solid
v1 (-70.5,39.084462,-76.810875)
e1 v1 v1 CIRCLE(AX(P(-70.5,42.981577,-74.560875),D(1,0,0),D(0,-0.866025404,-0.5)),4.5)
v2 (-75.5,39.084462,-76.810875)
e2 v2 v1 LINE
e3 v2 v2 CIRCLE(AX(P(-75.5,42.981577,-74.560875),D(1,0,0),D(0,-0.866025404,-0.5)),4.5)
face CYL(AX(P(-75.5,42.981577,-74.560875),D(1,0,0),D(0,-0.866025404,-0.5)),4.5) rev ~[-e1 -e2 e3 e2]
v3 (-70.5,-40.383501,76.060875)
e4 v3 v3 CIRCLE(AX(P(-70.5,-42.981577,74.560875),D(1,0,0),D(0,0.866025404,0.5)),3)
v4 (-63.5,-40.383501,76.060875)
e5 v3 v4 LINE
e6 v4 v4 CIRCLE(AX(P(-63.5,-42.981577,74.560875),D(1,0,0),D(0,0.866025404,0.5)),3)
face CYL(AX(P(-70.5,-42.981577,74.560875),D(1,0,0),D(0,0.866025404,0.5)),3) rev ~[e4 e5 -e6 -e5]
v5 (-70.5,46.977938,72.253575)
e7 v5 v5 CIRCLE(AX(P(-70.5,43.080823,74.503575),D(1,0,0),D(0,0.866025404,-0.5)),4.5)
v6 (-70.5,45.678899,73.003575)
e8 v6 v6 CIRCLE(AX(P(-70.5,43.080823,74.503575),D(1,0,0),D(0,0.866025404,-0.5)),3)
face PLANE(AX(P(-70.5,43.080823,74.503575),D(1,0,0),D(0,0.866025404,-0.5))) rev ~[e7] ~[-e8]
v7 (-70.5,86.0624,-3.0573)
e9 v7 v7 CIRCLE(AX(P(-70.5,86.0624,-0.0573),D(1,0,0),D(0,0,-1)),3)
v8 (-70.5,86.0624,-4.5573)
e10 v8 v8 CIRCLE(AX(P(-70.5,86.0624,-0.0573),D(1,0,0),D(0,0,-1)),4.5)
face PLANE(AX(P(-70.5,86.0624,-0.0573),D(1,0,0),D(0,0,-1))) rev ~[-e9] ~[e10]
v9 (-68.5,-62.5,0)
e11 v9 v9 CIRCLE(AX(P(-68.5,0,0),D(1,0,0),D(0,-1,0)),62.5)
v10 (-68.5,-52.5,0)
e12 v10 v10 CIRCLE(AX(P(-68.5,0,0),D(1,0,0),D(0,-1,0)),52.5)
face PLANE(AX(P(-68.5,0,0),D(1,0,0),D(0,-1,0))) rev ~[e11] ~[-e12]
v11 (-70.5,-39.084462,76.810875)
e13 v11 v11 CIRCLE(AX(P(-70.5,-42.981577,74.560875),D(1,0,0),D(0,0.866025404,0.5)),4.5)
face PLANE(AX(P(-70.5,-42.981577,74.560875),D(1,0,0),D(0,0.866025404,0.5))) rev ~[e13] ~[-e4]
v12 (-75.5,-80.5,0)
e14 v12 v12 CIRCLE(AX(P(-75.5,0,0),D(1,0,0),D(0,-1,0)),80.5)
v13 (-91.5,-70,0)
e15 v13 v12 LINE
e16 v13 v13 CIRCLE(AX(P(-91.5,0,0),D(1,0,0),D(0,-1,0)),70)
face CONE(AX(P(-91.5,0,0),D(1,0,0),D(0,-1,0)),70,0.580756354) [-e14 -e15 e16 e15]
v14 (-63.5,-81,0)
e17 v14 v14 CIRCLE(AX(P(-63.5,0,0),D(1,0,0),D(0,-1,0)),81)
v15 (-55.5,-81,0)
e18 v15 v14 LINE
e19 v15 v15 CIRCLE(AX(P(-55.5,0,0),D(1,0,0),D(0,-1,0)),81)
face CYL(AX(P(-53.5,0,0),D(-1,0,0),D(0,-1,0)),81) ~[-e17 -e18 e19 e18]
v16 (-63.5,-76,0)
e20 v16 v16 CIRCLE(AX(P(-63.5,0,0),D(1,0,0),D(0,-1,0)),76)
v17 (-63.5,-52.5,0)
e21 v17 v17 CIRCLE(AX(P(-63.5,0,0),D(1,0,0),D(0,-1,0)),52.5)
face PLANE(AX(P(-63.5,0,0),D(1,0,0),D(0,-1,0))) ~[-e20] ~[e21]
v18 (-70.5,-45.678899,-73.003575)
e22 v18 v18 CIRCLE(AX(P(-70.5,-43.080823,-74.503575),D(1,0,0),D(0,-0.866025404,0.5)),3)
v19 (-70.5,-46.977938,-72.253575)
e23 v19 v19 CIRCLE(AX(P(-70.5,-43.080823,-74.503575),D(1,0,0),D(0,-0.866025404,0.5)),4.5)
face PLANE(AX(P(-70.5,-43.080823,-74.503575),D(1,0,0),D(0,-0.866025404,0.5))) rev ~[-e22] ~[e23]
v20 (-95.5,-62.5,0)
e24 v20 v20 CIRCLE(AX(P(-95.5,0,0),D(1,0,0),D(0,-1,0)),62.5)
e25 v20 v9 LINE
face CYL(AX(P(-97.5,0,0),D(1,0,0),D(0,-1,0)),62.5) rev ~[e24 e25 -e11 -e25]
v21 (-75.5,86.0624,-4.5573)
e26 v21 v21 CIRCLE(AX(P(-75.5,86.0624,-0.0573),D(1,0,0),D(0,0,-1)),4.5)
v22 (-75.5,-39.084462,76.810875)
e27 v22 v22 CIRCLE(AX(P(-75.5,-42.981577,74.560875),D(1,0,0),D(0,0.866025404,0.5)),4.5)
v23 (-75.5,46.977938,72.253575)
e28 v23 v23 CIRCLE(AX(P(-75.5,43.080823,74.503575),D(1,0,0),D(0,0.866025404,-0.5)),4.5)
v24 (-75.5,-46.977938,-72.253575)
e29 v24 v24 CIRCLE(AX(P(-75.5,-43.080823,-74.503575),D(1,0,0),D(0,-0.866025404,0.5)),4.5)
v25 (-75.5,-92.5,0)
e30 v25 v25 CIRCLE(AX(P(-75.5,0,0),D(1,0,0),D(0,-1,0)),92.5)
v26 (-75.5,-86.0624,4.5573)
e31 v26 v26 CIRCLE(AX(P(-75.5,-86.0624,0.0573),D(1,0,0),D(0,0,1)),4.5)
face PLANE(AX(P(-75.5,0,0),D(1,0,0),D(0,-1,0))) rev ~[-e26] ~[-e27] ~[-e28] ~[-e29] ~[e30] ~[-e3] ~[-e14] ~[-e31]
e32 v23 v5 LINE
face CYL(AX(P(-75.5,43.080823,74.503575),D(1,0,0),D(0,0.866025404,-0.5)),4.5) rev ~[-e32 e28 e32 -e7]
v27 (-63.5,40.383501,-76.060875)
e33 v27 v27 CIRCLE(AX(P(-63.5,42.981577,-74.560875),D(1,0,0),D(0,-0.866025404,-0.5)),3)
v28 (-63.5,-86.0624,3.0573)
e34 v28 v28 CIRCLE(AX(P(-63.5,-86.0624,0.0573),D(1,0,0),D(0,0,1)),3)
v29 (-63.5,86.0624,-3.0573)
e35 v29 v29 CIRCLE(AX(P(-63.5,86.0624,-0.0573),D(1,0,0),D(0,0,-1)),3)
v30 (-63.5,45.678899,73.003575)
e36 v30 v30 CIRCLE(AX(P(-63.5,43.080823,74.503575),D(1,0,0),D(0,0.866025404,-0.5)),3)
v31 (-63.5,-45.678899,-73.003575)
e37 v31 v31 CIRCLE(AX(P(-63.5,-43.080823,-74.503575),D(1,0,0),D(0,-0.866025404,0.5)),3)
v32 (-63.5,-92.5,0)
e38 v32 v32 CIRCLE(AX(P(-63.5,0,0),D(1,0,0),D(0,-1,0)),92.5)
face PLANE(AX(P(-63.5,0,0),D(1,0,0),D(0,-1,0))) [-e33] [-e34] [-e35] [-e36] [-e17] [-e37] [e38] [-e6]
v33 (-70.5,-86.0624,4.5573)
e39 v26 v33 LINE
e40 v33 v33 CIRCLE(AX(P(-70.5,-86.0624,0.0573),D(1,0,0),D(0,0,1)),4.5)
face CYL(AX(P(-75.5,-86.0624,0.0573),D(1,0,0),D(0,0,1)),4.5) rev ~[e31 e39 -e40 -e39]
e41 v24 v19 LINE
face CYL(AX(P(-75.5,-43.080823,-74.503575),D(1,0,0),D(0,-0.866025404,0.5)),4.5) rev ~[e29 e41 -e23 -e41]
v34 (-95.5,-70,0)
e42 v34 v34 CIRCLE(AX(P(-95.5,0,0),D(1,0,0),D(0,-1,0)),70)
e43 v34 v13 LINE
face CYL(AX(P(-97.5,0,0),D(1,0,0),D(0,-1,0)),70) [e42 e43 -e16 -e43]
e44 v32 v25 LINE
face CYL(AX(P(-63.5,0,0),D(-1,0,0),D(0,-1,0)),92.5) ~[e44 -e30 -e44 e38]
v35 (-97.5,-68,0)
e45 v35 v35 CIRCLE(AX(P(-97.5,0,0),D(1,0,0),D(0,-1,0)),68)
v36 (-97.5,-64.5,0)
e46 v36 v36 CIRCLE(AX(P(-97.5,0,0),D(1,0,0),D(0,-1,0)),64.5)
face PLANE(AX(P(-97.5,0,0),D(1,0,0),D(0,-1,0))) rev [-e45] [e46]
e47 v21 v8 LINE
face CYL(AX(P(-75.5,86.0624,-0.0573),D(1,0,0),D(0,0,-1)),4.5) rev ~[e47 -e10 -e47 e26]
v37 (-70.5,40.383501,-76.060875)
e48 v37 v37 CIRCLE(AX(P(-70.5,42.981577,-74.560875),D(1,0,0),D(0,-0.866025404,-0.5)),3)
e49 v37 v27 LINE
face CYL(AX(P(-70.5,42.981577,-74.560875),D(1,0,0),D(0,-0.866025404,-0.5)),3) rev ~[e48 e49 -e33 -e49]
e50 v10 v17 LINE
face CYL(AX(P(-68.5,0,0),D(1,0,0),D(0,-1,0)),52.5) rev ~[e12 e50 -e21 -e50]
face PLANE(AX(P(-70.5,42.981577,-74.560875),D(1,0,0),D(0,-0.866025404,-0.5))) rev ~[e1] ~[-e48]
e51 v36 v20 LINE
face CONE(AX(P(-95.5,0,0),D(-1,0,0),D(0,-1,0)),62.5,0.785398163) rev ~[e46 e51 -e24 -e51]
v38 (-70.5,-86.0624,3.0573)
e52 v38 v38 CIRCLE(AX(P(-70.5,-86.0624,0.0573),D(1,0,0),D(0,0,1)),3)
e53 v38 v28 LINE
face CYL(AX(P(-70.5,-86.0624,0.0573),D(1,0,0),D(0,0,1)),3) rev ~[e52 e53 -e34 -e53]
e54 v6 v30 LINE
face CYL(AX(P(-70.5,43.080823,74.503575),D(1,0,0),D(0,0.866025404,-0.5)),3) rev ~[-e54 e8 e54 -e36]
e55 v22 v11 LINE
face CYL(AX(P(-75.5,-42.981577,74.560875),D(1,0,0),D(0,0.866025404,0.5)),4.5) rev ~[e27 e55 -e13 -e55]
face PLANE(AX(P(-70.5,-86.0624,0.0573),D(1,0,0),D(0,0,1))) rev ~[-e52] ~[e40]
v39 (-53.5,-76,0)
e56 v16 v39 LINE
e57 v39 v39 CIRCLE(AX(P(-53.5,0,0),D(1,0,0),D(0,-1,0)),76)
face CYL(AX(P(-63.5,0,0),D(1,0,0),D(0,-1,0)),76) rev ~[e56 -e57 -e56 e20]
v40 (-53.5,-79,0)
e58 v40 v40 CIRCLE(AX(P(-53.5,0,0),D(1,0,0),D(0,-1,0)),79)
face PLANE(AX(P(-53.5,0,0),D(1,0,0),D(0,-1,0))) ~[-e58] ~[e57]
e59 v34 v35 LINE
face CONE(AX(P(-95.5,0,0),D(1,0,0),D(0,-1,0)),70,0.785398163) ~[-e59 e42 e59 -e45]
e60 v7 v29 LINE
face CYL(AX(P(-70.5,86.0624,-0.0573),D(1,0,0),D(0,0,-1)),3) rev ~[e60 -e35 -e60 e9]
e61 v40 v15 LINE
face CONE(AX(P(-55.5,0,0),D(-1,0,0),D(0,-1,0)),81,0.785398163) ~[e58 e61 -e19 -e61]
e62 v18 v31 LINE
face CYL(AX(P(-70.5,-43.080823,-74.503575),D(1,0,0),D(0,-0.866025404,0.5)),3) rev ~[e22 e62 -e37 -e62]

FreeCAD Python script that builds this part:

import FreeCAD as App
import Part
import Sketcher
Q = App.Units.Quantity


def edges_at(feature, points):
    """Names of the edges that pass closest to the given points."""
    edges = feature.Shape.Edges
    near = lambda p: min(range(len(edges)), key=lambda i: edges[i].distToShape(Part.Vertex(*p))[0])
    return sorted({f"Edge{near(p) + 1}" for p in points})

doc = App.newDocument("Part")
body = doc.addObject("PartDesign::Body", "Body")

# Sketch on XY plane
sketch1 = doc.addObject("Sketcher::SketchObject", "Sketch")
body.addObject(sketch1)
sketch1.AttachmentSupport = (doc.XY_Plane, [""])
sketch1.MapMode = "FlatFace"
sketch1.addGeometry(Part.LineSegment(App.Vector(-76, -92, 0), App.Vector(-64, -92, 0)), False)
sketch1.addGeometry(Part.LineSegment(App.Vector(-64, -92, 0), App.Vector(-64, -81, 0)), False)
sketch1.addGeometry(Part.LineSegment(App.Vector(-64, -81, 0), App.Vector(-54, -81, 0)), False)
sketch1.addGeometry(Part.LineSegment(App.Vector(-54, -81, 0), App.Vector(-54, -76, 0)), False)
sketch1.addGeometry(Part.LineSegment(App.Vector(-54, -76, 0), App.Vector(-64, -76, 0)), False)
sketch1.addGeometry(Part.LineSegment(App.Vector(-64, -76, 0), App.Vector(-64, -52, 0)), False)
sketch1.addGeometry(Part.LineSegment(App.Vector(-64, -52, 0), App.Vector(-68, -52, 0)), False)
sketch1.addGeometry(Part.LineSegment(App.Vector(-68, -52, 0), App.Vector(-68, -62, 0)), False)
sketch1.addGeometry(Part.LineSegment(App.Vector(-68, -62, 0), App.Vector(-98, -62, 0)), False)
sketch1.addGeometry(Part.LineSegment(App.Vector(-98, -62, 0), App.Vector(-98, -70, 0)), False)
sketch1.addGeometry(Part.LineSegment(App.Vector(-98, -70, 0), App.Vector(-92, -70, 0)), False)
sketch1.addGeometry(Part.LineSegment(App.Vector(-92, -70, 0), App.Vector(-76, -80, 0)), False)
sketch1.addGeometry(Part.LineSegment(App.Vector(-76, -80, 0), App.Vector(-76, -92, 0)), False)
sketch1.addConstraint(Sketcher.Constraint("Coincident", 0, 2, 1, 1))
sketch1.addConstraint(Sketcher.Constraint("Coincident", 1, 2, 2, 1))
sketch1.addConstraint(Sketcher.Constraint("Coincident", 2, 2, 3, 1))
sketch1.addConstraint(Sketcher.Constraint("Coincident", 3, 2, 4, 1))
sketch1.addConstraint(Sketcher.Constraint("Coincident", 4, 2, 5, 1))
sketch1.addConstraint(Sketcher.Constraint("Coincident", 5, 2, 6, 1))
sketch1.addConstraint(Sketcher.Constraint("Coincident", 6, 2, 7, 1))
sketch1.addConstraint(Sketcher.Constraint("Coincident", 7, 2, 8, 1))
sketch1.addConstraint(Sketcher.Constraint("Coincident", 8, 2, 9, 1))
sketch1.addConstraint(Sketcher.Constraint("Coincident", 9, 2, 10, 1))
sketch1.addConstraint(Sketcher.Constraint("Coincident", 10, 2, 11, 1))
sketch1.addConstraint(Sketcher.Constraint("Coincident", 11, 2, 12, 1))
sketch1.addConstraint(Sketcher.Constraint("Coincident", 12, 2, 0, 1))
sketch1.addConstraint(Sketcher.Constraint("Horizontal", 0))
sketch1.addConstraint(Sketcher.Constraint("Vertical", 1))
sketch1.addConstraint(Sketcher.Constraint("Horizontal", 2))
sketch1.addConstraint(Sketcher.Constraint("Vertical", 3))
sketch1.addConstraint(Sketcher.Constraint("Horizontal", 4))
sketch1.addConstraint(Sketcher.Constraint("Vertical", 5))
sketch1.addConstraint(Sketcher.Constraint("Horizontal", 6))
sketch1.addConstraint(Sketcher.Constraint("Vertical", 7))
sketch1.addConstraint(Sketcher.Constraint("Horizontal", 8))
sketch1.addConstraint(Sketcher.Constraint("Vertical", 9))
sketch1.addConstraint(Sketcher.Constraint("Horizontal", 10))
sketch1.addConstraint(Sketcher.Constraint("Vertical", 12))
sketch1.addConstraint(Sketcher.Constraint("Vertical", 1, 2, 4, 2))
sketch1.addConstraint(Sketcher.Constraint("Equal", 6, 3))
sketch1.addConstraint(Sketcher.Constraint("Equal", 4, 7))
sketch1.addConstraint(Sketcher.Constraint("Equal", 0, 12))
sketch1.addConstraint(Sketcher.Constraint("DistanceX", 0, 1, 0, 2, Q("12 mm")))
sketch1.addConstraint(Sketcher.Constraint("DistanceX", 2, 1, 2, 2, Q("10 mm")))
sketch1.addConstraint(Sketcher.Constraint("DistanceX", 6, 2, 6, 1, Q("5 mm")))
sketch1.addConstraint(Sketcher.Constraint("DistanceX", 10, 1, 10, 2, Q("6 mm")))
sketch1.addConstraint(Sketcher.Constraint("DistanceY", 9, 2, 9, 1, Q("7.5 mm")))
sketch1.addConstraint(Sketcher.Constraint("DistanceY", 9, 2, -1, 1, Q("70 mm")))
sketch1.addConstraint(Sketcher.Constraint("DistanceY", 4, 2, 9, 2, Q("6 mm")))
sketch1.addConstraint(Sketcher.Constraint("DistanceX", 8, 2, 8, 1, Q("29 mm")))
sketch1.addConstraint(Sketcher.Constraint("DistanceY", 1, 1, 1, 2, Q("11.5 mm")))
sketch1.addConstraint(Sketcher.Constraint("DistanceX", 0, 2, -1, 1, Q("63.5 mm")))
revolution = doc.addObject("PartDesign::Revolution", "Revolution")
body.addObject(revolution)
revolution.Profile = sketch1
revolution.ReferenceAxis = (sketch1, ["H_Axis"])
revolution.Angle = 360
doc.recompute()

chamfer = doc.addObject("PartDesign::Chamfer", "Chamfer")
body.addObject(chamfer)
chamfer.Base = (revolution, edges_at(revolution, [(-97.5, 70, 0)]))
chamfer.Size = 2
doc.recompute()

chamfer2 = doc.addObject("PartDesign::Chamfer", "Chamfer001")
body.addObject(chamfer2)
chamfer2.Base = (chamfer, edges_at(chamfer, [(-97.5, 62.5, 0)]))
chamfer2.Size = 2
doc.recompute()

chamfer3 = doc.addObject("PartDesign::Chamfer", "Chamfer002")
body.addObject(chamfer3)
chamfer3.Base = (chamfer2, edges_at(chamfer2, [(-53.5, 81, 0)]))
chamfer3.Size = 2

# Sketch on YZ plane
sketch2 = doc.addObject("Sketcher::SketchObject", "Sketch001")
body.addObject(sketch2)
sketch2.AttachmentSupport = (doc.YZ_Plane, [""])
sketch2.MapMode = "FlatFace"
sketch2.AttachmentOffset = App.Placement(App.Vector(0, 0, -75.5), App.Rotation())
sketch2.addGeometry(Part.Circle(App.Vector(-86.1, 0.1, 0), App.Vector(0, 0, 1), 3), False)
sketch2.addConstraint(Sketcher.Constraint("Diameter", 0, Q("6 mm")))
sketch2.addConstraint(Sketcher.Constraint("DistanceX", 0, 3, -1, 1, Q("86.0624 mm")))
sketch2.addConstraint(Sketcher.Constraint("DistanceY", -1, 1, 0, 3, Q("0.0573 mm")))
doc.recompute()
hole = doc.addObject("PartDesign::Hole", "Hole")
body.addObject(hole)
hole.Profile = sketch2
hole.ThreadType = "None"
hole.Diameter = 6
hole.DepthType = "ThroughAll"
hole.HoleCutType = "Counterbore"
hole.HoleCutDiameter = 9
hole.HoleCutDepth = 5
hole.Reversed = True
doc.recompute()

polarpattern = doc.addObject("PartDesign::PolarPattern", "PolarPattern")
body.addObject(polarpattern)
polarpattern.Originals = [hole]
polarpattern.Axis = (doc.X_Axis, [""])
polarpattern.Angle = 360
polarpattern.Occurrences = 6
body.Tip = polarpattern

doc.recompute()
